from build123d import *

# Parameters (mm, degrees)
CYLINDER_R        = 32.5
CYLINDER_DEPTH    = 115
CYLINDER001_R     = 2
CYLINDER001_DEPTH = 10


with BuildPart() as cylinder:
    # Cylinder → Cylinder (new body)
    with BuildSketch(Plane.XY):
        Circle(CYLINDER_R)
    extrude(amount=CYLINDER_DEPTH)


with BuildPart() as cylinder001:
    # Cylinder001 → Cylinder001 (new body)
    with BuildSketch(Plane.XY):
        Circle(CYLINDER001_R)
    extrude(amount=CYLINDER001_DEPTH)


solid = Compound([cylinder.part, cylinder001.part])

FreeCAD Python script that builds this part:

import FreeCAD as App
import Part
import Sketcher

V = App.Vector
Q = App.Units.Quantity

doc = App.newDocument("Part")
body = doc.addObject("PartDesign::Body", "Body")

# Sketch on XY plane
sketch1 = body.newObject("Sketcher::SketchObject", "Sketch")
sketch1.AttachmentSupport = (doc.getObject("XY_Plane"), [""])
sketch1.MapMode = "FlatFace"
sketch1.addGeometry(Part.Circle(V(0, 0, 0), V(0, 0, 1), 32.5), False)
sketch1.addConstraint(Sketcher.Constraint("Coincident", 0, 3, -1, 1))
sketch1.addConstraint(Sketcher.Constraint("Diameter", 0, Q("65 mm")))
pad1 = body.newObject("PartDesign::Pad", "Pad")
pad1.Profile = sketch1
pad1.Length = 115
body2 = doc.addObject("PartDesign::Body", "Body001")

# Sketch on XY plane
sketch2 = body2.newObject("Sketcher::SketchObject", "Sketch001")
sketch2.AttachmentSupport = (doc.getObject("XY_Plane001"), [""])
sketch2.MapMode = "FlatFace"
sketch2.addGeometry(Part.Circle(V(0, 0, 0), V(0, 0, 1), 2), False)
sketch2.addConstraint(Sketcher.Constraint("Coincident", 0, 3, -1, 1))
sketch2.addConstraint(Sketcher.Constraint("Diameter", 0, Q("4 mm")))
pad2 = body2.newObject("PartDesign::Pad", "Pad001")
pad2.Profile = sketch2
pad2.Length = 10

doc.recompute()
